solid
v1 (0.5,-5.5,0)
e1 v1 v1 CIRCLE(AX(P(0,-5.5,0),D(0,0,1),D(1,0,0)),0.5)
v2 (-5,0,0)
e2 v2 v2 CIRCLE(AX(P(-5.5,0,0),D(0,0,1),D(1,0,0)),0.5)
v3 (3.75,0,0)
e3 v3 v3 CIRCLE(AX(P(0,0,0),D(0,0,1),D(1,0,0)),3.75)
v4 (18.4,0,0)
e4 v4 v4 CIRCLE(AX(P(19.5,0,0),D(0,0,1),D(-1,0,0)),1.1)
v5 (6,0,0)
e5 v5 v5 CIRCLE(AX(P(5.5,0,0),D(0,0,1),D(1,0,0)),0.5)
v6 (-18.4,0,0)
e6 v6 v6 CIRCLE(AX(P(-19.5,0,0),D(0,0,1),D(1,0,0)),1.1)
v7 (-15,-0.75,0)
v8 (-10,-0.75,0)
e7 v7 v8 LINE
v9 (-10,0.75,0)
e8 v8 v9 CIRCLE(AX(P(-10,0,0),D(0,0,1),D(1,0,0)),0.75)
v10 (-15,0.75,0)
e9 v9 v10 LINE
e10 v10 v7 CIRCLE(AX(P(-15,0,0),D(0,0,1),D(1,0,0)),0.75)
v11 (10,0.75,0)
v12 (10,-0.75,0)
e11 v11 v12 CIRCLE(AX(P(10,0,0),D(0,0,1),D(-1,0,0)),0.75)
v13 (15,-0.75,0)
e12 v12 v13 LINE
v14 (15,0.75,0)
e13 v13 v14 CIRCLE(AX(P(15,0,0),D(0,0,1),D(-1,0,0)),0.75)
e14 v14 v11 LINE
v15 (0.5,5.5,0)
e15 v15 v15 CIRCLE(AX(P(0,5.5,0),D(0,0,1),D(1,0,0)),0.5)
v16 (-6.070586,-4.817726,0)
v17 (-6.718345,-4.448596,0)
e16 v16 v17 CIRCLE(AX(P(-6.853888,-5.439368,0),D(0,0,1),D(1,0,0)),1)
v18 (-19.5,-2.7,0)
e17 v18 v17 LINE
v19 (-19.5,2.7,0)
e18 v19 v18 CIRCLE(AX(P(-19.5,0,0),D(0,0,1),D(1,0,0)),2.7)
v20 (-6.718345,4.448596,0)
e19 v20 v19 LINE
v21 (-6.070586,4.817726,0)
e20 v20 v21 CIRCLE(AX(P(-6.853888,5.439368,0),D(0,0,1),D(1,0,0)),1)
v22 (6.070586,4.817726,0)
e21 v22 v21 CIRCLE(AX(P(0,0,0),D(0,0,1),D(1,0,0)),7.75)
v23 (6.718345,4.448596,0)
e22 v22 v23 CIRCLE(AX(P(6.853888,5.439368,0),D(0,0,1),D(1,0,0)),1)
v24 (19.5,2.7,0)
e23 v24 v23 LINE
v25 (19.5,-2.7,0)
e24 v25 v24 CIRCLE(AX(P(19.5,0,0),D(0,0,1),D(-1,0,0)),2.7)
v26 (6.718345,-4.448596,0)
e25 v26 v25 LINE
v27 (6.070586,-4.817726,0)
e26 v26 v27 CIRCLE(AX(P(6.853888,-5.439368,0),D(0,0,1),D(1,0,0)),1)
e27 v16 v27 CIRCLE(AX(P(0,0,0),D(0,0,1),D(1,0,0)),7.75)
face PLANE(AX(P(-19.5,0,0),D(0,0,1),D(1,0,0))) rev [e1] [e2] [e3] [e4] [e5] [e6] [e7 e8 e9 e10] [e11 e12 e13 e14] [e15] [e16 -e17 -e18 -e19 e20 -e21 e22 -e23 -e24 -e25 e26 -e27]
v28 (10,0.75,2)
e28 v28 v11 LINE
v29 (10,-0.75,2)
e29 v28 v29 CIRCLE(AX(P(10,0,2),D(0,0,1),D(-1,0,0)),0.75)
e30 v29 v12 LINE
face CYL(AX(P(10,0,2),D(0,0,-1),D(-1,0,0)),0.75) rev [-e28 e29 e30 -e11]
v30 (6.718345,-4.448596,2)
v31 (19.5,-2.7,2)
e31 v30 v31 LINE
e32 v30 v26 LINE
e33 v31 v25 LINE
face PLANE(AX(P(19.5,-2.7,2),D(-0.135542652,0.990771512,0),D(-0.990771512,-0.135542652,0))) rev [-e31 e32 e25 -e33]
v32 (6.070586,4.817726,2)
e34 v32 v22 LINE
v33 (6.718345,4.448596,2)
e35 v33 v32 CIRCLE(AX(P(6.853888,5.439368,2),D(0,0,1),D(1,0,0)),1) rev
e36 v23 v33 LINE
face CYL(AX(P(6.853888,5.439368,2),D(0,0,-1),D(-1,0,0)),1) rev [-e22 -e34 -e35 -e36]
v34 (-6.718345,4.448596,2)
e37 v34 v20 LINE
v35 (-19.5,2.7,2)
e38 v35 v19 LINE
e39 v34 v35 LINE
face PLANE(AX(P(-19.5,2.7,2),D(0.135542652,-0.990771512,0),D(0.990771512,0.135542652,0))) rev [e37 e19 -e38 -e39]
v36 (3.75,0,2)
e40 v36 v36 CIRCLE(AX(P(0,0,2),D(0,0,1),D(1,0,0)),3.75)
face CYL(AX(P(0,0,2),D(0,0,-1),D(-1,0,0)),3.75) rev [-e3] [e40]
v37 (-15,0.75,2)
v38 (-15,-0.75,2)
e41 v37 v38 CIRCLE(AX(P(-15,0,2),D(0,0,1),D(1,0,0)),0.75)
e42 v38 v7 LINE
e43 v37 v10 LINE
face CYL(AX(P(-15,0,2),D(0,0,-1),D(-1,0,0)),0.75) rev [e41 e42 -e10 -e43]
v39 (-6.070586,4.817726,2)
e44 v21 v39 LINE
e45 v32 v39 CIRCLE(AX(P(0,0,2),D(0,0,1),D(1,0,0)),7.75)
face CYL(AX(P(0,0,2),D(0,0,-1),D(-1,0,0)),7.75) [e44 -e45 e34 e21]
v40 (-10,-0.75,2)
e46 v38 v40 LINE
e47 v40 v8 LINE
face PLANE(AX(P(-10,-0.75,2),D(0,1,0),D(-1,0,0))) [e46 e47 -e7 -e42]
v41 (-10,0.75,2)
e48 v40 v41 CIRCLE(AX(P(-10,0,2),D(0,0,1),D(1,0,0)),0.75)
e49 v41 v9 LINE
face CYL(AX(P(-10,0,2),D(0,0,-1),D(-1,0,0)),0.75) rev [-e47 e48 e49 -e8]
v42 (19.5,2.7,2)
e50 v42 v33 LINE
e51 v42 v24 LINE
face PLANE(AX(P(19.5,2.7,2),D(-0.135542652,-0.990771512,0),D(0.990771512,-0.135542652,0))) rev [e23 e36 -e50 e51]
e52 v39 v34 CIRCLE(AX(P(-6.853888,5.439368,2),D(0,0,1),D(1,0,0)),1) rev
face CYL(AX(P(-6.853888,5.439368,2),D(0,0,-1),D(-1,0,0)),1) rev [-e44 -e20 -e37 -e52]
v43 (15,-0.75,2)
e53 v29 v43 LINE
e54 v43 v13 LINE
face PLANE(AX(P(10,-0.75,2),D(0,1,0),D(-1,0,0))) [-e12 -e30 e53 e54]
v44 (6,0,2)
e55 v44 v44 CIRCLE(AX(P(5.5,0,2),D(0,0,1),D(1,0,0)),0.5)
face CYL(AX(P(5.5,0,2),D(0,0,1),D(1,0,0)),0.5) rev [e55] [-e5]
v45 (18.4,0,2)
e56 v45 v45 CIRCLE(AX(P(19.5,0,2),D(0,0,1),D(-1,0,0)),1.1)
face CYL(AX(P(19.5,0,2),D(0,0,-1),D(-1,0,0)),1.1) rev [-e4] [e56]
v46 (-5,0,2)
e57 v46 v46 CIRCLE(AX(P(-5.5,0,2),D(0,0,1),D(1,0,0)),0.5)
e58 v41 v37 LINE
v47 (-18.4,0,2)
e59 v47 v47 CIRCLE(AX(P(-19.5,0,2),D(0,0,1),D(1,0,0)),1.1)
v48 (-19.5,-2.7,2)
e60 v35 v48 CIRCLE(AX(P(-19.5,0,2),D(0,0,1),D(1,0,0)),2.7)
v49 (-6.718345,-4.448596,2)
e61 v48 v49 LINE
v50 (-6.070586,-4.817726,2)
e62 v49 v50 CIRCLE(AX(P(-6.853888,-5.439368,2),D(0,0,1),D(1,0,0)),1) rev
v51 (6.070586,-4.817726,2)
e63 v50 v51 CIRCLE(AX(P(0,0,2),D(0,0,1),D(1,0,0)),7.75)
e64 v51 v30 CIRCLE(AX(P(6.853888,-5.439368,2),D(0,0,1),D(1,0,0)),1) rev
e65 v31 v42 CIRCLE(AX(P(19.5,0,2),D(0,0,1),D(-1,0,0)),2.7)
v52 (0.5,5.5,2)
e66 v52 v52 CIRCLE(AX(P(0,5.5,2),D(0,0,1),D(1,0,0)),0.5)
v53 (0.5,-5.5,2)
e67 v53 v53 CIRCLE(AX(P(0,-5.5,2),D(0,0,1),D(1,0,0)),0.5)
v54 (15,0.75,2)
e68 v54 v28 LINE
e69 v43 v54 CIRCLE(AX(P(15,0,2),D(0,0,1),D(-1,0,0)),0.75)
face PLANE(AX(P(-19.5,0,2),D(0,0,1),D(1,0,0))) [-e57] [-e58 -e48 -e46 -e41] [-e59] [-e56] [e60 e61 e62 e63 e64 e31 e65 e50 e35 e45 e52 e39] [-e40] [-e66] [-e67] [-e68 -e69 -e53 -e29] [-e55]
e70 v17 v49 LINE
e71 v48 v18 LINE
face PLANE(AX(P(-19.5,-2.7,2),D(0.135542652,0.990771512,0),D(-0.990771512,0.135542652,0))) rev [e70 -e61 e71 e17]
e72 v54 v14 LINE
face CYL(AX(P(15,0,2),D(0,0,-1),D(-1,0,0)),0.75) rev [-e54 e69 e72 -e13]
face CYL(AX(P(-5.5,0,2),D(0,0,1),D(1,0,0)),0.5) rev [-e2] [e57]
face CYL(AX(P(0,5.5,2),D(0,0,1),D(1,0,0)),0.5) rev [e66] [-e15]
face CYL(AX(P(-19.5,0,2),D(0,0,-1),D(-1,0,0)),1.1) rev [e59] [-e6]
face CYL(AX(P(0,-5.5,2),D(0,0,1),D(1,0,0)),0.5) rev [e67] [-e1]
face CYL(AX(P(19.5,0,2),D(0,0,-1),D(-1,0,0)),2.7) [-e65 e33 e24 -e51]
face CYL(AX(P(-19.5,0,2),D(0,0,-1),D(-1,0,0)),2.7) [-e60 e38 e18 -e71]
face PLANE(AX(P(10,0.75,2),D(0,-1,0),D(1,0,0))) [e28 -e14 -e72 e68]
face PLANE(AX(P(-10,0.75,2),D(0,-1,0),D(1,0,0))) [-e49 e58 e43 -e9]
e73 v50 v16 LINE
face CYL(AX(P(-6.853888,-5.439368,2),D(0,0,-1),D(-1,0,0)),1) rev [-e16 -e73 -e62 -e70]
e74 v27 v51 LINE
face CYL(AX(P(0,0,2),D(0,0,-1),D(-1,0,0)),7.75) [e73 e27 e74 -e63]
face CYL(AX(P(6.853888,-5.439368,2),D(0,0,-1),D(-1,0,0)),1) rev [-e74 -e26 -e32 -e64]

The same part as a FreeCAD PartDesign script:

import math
import FreeCAD as App
import Part
import Sketcher
from FreeCAD import Vector
Q = App.Units.Quantity


def edges_at(feature, points):
    """Names of the edges that pass closest to the given points."""
    edges = feature.Shape.Edges
    near = lambda p: min(range(len(edges)), key=lambda i: edges[i].distToShape(Part.Vertex(*p))[0])
    return sorted({f"Edge{near(p) + 1}" for p in points})

doc = App.newDocument("Part")
body = doc.addObject("PartDesign::Body", "Body")

# Sketch on XY plane
sketch1 = body.newObject("Sketcher::SketchObject", "Sketch")
sketch1.AttachmentSupport = (doc.getObject("XY_Plane"), [""])
sketch1.MapMode = "FlatFace"
sketch1.addGeometry(Part.LineSegment(Vector(-6.3, 4.5, 0), Vector(-19.5, 2.7, 0)), False)
sketch1.addGeometry(Part.ArcOfCircle(Part.Circle(Vector(-19.5, 0, 0), Vector(0, 0, 1), 2.7), math.radians(90), math.radians(270)), False)
sketch1.addGeometry(Part.LineSegment(Vector(-19.5, -2.7, 0), Vector(-6.3, -4.5, 0)), False)
sketch1.addGeometry(Part.ArcOfCircle(Part.Circle(Vector(0, 0, 0), Vector(0, 0, 1), 7.8), math.radians(-144), math.radians(-36)), False)
sketch1.addGeometry(Part.LineSegment(Vector(6.3, -4.5, 0), Vector(19.5, -2.7, 0)), False)
sketch1.addGeometry(Part.ArcOfCircle(Part.Circle(Vector(19.5, 0, 0), Vector(0, 0, 1), 2.7), math.radians(-90), math.radians(90)), False)
sketch1.addGeometry(Part.LineSegment(Vector(19.5, 2.7, 0), Vector(6.3, 4.5, 0)), False)
sketch1.addGeometry(Part.ArcOfCircle(Part.Circle(Vector(0, 0, 0), Vector(0, 0, 1), 7.8), math.radians(36), math.radians(144)), False)
sketch1.addGeometry(Part.Circle(Vector(19.5, 0, 0), Vector(0, 0, 1), 1.1), False)
sketch1.addGeometry(Part.ArcOfCircle(Part.Circle(Vector(10, 0, 0), Vector(0, 0, 1), 0.8), math.radians(90), math.radians(270)), False)
sketch1.addGeometry(Part.LineSegment(Vector(10, 0.8, 0), Vector(15, 0.8, 0)), False)
sketch1.addGeometry(Part.ArcOfCircle(Part.Circle(Vector(15, 0, 0), Vector(0, 0, 1), 0.8), math.radians(-90), math.radians(90)), False)
sketch1.addGeometry(Part.LineSegment(Vector(15, -0.8, 0), Vector(10, -0.8, 0)), False)
sketch1.addGeometry(Part.Circle(Vector(0, 0, 0), Vector(0, 0, 1), 3.8), False)
sketch1.addGeometry(Part.LineSegment(Vector(-10, -0.8, 0), Vector(-15, -0.8, 0)), False)
sketch1.addGeometry(Part.ArcOfCircle(Part.Circle(Vector(-15, 0, 0), Vector(0, 0, 1), 0.8), math.radians(90), math.radians(270)), False)
sketch1.addGeometry(Part.LineSegment(Vector(-15, 0.8, 0), Vector(-10, 0.8, 0)), False)
sketch1.addGeometry(Part.ArcOfCircle(Part.Circle(Vector(-10, 0, 0), Vector(0, 0, 1), 0.8), math.radians(-90), math.radians(90)), False)
sketch1.addGeometry(Part.Circle(Vector(-19.5, 0, 0), Vector(0, 0, 1), 1.1), False)
sketch1.addConstraint(Sketcher.Constraint("Coincident", 0, 2, 1, 1))
sketch1.addConstraint(Sketcher.Constraint("Coincident", 1, 2, 2, 1))
sketch1.addConstraint(Sketcher.Constraint("Coincident", 2, 2, 3, 1))
sketch1.addConstraint(Sketcher.Constraint("Coincident", 3, 2, 4, 1))
sketch1.addConstraint(Sketcher.Constraint("Coincident", 4, 2, 5, 1))
sketch1.addConstraint(Sketcher.Constraint("Coincident", 5, 2, 6, 1))
sketch1.addConstraint(Sketcher.Constraint("Coincident", 6, 2, 7, 1))
sketch1.addConstraint(Sketcher.Constraint("Coincident", 7, 2, 0, 1))
sketch1.addConstraint(Sketcher.Constraint("Tangent", 9, 1, 10, 1))
sketch1.addConstraint(Sketcher.Constraint("Tangent", 10, 2, 11, 2))
sketch1.addConstraint(Sketcher.Constraint("Tangent", 11, 1, 12, 1))
sketch1.addConstraint(Sketcher.Constraint("Tangent", 12, 2, 9, 2))
sketch1.addConstraint(Sketcher.Constraint("Tangent", 14, 2, 15, 2))
sketch1.addConstraint(Sketcher.Constraint("Tangent", 15, 1, 16, 1))
sketch1.addConstraint(Sketcher.Constraint("Tangent", 16, 2, 17, 2))
sketch1.addConstraint(Sketcher.Constraint("Tangent", 17, 1, 14, 1))
sketch1.addConstraint(Sketcher.Constraint("Horizontal", 10))
sketch1.addConstraint(Sketcher.Constraint("Horizontal", 12))
sketch1.addConstraint(Sketcher.Constraint("Horizontal", 14))
sketch1.addConstraint(Sketcher.Constraint("Horizontal", 16))
sketch1.addConstraint(Sketcher.Constraint("Coincident", 3, 3, -1, 1))
sketch1.addConstraint(Sketcher.Constraint("Coincident", 7, 3, -1, 1))
sketch1.addConstraint(Sketcher.Constraint("Coincident", 13, 3, -1, 1))
sketch1.addConstraint(Sketcher.Constraint("Coincident", 8, 3, 5, 3))
sketch1.addConstraint(Sketcher.Constraint("Coincident", 18, 3, 1, 3))
sketch1.addConstraint(Sketcher.Constraint("Equal", 1, 5))
sketch1.addConstraint(Sketcher.Constraint("Equal", 3, 7))
sketch1.addConstraint(Sketcher.Constraint("Equal", 11, 15))
sketch1.addConstraint(Sketcher.Constraint("Equal", 8, 18))
sketch1.addConstraint(Sketcher.Constraint("Symmetric", 1, 3, 5, 3, -1, 1))
sketch1.addConstraint(Sketcher.Constraint("Symmetric", 11, 3, 15, 3, -1, 1))
sketch1.addConstraint(Sketcher.Constraint("Symmetric", 9, 3, 17, 3, -2))
sketch1.addConstraint(Sketcher.Constraint("Symmetric", 1, 2, 4, 2, -2))
sketch1.addConstraint(Sketcher.Constraint("Parallel", 0, 4))
sketch1.addConstraint(Sketcher.Constraint("Parallel", 2, 6))
sketch1.addConstraint(Sketcher.Constraint("Horizontal", 2, 2, 3, 2))
sketch1.addConstraint(Sketcher.Constraint("Horizontal", 6, 2, 7, 2))
sketch1.addConstraint(Sketcher.Constraint("Vertical", 18, 3, 0, 2))
sketch1.addConstraint(Sketcher.Constraint("Vertical", 0, 2, 1, 2))
sketch1.addConstraint(Sketcher.Constraint("Diameter", 8, Q("2.2 mm")))
sketch1.addConstraint(Sketcher.Constraint("Diameter", 13, Q("7.5 mm")))
sketch1.addConstraint(Sketcher.Constraint("Radius", 1, Q("2.7 mm")))
sketch1.addConstraint(Sketcher.Constraint("DistanceX", 10, 1, 10, 2, Q("5 mm")))
sketch1.addConstraint(Sketcher.Constraint("Radius", 3, Q("7.75 mm")))
sketch1.addConstraint(Sketcher.Constraint("Radius", 9, Q("0.75 mm")))
sketch1.addConstraint(Sketcher.Constraint("DistanceX", -1, 1, 9, 3, Q("10 mm")))
sketch1.addConstraint(Sketcher.Constraint("DistanceX", 1, 3, 5, 3, Q("39 mm")))
sketch1.addConstraint(Sketcher.Constraint("Angle", 0, Q("-172.21 deg")))
pad1 = body.newObject("PartDesign::Pad", "Pad")
pad1.Profile = sketch1
pad1.Length = 2

# Sketch on XY plane
sketch2 = body.newObject("Sketcher::SketchObject", "Sketch001")
sketch2.AttachmentSupport = (doc.getObject("XY_Plane"), [""])
sketch2.MapMode = "FlatFace"
sketch2.AttachmentOffset = App.Placement(Vector(0, 0, 2), App.Rotation())
sketch2.addGeometry(Part.Circle(Vector(-5.5, 0, 0), Vector(0, 0, 1), 0.5), False)
sketch2.addGeometry(Part.Circle(Vector(0, 5.5, 0), Vector(0, 0, 1), 0.5), False)
sketch2.addGeometry(Part.Circle(Vector(5.5, 0, 0), Vector(0, 0, 1), 0.5), False)
sketch2.addGeometry(Part.Circle(Vector(0, -5.5, 0), Vector(0, 0, 1), 0.5), False)
sketch2.addConstraint(Sketcher.Constraint("Equal", 0, 1))
sketch2.addConstraint(Sketcher.Constraint("Equal", 1, 2))
sketch2.addConstraint(Sketcher.Constraint("Equal", 2, 3))
sketch2.addConstraint(Sketcher.Constraint("Symmetric", 0, 3, 2, 3, -1, 1))
sketch2.addConstraint(Sketcher.Constraint("Symmetric", 1, 3, 3, 3, -1, 1))
sketch2.addConstraint(Sketcher.Constraint("PointOnObject", 0, 3, -1))
sketch2.addConstraint(Sketcher.Constraint("PointOnObject", 1, 3, -2))
sketch2.addConstraint(Sketcher.Constraint("Diameter", 0, Q("1 mm")))
sketch2.addConstraint(Sketcher.Constraint("DistanceX", 0, 3, 2, 3, Q("11 mm")))
sketch2.addConstraint(Sketcher.Constraint("DistanceY", 3, 3, 1, 3, Q("11 mm")))
doc.recompute()
hole = body.newObject("PartDesign::Hole", "Hole")
hole.Profile = sketch2
hole.ThreadType = "None"
hole.Diameter = 1
hole.DepthType = "ThroughAll"
doc.recompute()

fillet = body.newObject("PartDesign::Fillet", "Fillet")
fillet.Base = (hole, edges_at(hole, [
    (-6.306, 4.505, 1),
    (6.306, 4.505, 1),
    (6.306, -4.505, 1),
    (-6.306, -4.505, 1),
]))
fillet.Radius = 1

doc.recompute()
